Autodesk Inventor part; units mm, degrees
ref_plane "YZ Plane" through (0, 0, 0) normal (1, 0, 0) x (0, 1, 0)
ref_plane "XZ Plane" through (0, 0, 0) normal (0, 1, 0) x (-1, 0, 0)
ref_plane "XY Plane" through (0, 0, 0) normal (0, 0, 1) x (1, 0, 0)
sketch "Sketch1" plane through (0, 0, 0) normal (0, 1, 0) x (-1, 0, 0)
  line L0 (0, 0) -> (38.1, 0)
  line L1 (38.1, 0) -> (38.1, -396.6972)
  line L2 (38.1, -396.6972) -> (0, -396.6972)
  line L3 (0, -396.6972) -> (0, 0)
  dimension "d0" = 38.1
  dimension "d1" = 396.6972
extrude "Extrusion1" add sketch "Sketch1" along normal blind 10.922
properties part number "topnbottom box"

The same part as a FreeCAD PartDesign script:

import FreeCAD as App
import Part
import Sketcher
from FreeCAD import Vector
Q = App.Units.Quantity


def add_polygon(sketch, points):
    """Adds a closed chain of lines whose ends are joined by coincident constraints."""
    first, n = sketch.GeometryCount, len(points)
    for a, b in zip(points, points[1:] + points[:1]):
        sketch.addGeometry(Part.LineSegment(App.Vector(*a, 0), App.Vector(*b, 0)), False)
    for i in range(n):
        sketch.addConstraint(Sketcher.Constraint("Coincident", first + i, 2, first + (i + 1) % n, 1))

doc = App.newDocument("Part")
body = doc.addObject("PartDesign::Body", "Body")

# Sketch on XZ plane
sketch1 = body.newObject("Sketcher::SketchObject", "Sketch")
sketch1.AttachmentSupport = (doc.getObject("XZ_Plane"), [""])
sketch1.MapMode = "FlatFace"
add_polygon(sketch1, [(-38, 0), (0, 0), (0, -397), (-38, -397)])  # lines 0-3
sketch1.addConstraint([
    Sketcher.Constraint("Horizontal", 0),
    Sketcher.Constraint("Vertical", 1),
    Sketcher.Constraint("Horizontal", 2),
    Sketcher.Constraint("Vertical", 3),
    Sketcher.Constraint("Coincident", 0, 2, -1, 1),
    Sketcher.Constraint("DistanceX", 0, 1, 0, 2, Q("1.5 in")),
    Sketcher.Constraint("DistanceY", 1, 2, 1, 1, Q("15.618 in")),
])
pad1 = body.newObject("PartDesign::Pad", "Pad")
pad1.Profile = sketch1
pad1.Length = Q("0.43 in")
pad1.Reversed = True

doc.recompute()
